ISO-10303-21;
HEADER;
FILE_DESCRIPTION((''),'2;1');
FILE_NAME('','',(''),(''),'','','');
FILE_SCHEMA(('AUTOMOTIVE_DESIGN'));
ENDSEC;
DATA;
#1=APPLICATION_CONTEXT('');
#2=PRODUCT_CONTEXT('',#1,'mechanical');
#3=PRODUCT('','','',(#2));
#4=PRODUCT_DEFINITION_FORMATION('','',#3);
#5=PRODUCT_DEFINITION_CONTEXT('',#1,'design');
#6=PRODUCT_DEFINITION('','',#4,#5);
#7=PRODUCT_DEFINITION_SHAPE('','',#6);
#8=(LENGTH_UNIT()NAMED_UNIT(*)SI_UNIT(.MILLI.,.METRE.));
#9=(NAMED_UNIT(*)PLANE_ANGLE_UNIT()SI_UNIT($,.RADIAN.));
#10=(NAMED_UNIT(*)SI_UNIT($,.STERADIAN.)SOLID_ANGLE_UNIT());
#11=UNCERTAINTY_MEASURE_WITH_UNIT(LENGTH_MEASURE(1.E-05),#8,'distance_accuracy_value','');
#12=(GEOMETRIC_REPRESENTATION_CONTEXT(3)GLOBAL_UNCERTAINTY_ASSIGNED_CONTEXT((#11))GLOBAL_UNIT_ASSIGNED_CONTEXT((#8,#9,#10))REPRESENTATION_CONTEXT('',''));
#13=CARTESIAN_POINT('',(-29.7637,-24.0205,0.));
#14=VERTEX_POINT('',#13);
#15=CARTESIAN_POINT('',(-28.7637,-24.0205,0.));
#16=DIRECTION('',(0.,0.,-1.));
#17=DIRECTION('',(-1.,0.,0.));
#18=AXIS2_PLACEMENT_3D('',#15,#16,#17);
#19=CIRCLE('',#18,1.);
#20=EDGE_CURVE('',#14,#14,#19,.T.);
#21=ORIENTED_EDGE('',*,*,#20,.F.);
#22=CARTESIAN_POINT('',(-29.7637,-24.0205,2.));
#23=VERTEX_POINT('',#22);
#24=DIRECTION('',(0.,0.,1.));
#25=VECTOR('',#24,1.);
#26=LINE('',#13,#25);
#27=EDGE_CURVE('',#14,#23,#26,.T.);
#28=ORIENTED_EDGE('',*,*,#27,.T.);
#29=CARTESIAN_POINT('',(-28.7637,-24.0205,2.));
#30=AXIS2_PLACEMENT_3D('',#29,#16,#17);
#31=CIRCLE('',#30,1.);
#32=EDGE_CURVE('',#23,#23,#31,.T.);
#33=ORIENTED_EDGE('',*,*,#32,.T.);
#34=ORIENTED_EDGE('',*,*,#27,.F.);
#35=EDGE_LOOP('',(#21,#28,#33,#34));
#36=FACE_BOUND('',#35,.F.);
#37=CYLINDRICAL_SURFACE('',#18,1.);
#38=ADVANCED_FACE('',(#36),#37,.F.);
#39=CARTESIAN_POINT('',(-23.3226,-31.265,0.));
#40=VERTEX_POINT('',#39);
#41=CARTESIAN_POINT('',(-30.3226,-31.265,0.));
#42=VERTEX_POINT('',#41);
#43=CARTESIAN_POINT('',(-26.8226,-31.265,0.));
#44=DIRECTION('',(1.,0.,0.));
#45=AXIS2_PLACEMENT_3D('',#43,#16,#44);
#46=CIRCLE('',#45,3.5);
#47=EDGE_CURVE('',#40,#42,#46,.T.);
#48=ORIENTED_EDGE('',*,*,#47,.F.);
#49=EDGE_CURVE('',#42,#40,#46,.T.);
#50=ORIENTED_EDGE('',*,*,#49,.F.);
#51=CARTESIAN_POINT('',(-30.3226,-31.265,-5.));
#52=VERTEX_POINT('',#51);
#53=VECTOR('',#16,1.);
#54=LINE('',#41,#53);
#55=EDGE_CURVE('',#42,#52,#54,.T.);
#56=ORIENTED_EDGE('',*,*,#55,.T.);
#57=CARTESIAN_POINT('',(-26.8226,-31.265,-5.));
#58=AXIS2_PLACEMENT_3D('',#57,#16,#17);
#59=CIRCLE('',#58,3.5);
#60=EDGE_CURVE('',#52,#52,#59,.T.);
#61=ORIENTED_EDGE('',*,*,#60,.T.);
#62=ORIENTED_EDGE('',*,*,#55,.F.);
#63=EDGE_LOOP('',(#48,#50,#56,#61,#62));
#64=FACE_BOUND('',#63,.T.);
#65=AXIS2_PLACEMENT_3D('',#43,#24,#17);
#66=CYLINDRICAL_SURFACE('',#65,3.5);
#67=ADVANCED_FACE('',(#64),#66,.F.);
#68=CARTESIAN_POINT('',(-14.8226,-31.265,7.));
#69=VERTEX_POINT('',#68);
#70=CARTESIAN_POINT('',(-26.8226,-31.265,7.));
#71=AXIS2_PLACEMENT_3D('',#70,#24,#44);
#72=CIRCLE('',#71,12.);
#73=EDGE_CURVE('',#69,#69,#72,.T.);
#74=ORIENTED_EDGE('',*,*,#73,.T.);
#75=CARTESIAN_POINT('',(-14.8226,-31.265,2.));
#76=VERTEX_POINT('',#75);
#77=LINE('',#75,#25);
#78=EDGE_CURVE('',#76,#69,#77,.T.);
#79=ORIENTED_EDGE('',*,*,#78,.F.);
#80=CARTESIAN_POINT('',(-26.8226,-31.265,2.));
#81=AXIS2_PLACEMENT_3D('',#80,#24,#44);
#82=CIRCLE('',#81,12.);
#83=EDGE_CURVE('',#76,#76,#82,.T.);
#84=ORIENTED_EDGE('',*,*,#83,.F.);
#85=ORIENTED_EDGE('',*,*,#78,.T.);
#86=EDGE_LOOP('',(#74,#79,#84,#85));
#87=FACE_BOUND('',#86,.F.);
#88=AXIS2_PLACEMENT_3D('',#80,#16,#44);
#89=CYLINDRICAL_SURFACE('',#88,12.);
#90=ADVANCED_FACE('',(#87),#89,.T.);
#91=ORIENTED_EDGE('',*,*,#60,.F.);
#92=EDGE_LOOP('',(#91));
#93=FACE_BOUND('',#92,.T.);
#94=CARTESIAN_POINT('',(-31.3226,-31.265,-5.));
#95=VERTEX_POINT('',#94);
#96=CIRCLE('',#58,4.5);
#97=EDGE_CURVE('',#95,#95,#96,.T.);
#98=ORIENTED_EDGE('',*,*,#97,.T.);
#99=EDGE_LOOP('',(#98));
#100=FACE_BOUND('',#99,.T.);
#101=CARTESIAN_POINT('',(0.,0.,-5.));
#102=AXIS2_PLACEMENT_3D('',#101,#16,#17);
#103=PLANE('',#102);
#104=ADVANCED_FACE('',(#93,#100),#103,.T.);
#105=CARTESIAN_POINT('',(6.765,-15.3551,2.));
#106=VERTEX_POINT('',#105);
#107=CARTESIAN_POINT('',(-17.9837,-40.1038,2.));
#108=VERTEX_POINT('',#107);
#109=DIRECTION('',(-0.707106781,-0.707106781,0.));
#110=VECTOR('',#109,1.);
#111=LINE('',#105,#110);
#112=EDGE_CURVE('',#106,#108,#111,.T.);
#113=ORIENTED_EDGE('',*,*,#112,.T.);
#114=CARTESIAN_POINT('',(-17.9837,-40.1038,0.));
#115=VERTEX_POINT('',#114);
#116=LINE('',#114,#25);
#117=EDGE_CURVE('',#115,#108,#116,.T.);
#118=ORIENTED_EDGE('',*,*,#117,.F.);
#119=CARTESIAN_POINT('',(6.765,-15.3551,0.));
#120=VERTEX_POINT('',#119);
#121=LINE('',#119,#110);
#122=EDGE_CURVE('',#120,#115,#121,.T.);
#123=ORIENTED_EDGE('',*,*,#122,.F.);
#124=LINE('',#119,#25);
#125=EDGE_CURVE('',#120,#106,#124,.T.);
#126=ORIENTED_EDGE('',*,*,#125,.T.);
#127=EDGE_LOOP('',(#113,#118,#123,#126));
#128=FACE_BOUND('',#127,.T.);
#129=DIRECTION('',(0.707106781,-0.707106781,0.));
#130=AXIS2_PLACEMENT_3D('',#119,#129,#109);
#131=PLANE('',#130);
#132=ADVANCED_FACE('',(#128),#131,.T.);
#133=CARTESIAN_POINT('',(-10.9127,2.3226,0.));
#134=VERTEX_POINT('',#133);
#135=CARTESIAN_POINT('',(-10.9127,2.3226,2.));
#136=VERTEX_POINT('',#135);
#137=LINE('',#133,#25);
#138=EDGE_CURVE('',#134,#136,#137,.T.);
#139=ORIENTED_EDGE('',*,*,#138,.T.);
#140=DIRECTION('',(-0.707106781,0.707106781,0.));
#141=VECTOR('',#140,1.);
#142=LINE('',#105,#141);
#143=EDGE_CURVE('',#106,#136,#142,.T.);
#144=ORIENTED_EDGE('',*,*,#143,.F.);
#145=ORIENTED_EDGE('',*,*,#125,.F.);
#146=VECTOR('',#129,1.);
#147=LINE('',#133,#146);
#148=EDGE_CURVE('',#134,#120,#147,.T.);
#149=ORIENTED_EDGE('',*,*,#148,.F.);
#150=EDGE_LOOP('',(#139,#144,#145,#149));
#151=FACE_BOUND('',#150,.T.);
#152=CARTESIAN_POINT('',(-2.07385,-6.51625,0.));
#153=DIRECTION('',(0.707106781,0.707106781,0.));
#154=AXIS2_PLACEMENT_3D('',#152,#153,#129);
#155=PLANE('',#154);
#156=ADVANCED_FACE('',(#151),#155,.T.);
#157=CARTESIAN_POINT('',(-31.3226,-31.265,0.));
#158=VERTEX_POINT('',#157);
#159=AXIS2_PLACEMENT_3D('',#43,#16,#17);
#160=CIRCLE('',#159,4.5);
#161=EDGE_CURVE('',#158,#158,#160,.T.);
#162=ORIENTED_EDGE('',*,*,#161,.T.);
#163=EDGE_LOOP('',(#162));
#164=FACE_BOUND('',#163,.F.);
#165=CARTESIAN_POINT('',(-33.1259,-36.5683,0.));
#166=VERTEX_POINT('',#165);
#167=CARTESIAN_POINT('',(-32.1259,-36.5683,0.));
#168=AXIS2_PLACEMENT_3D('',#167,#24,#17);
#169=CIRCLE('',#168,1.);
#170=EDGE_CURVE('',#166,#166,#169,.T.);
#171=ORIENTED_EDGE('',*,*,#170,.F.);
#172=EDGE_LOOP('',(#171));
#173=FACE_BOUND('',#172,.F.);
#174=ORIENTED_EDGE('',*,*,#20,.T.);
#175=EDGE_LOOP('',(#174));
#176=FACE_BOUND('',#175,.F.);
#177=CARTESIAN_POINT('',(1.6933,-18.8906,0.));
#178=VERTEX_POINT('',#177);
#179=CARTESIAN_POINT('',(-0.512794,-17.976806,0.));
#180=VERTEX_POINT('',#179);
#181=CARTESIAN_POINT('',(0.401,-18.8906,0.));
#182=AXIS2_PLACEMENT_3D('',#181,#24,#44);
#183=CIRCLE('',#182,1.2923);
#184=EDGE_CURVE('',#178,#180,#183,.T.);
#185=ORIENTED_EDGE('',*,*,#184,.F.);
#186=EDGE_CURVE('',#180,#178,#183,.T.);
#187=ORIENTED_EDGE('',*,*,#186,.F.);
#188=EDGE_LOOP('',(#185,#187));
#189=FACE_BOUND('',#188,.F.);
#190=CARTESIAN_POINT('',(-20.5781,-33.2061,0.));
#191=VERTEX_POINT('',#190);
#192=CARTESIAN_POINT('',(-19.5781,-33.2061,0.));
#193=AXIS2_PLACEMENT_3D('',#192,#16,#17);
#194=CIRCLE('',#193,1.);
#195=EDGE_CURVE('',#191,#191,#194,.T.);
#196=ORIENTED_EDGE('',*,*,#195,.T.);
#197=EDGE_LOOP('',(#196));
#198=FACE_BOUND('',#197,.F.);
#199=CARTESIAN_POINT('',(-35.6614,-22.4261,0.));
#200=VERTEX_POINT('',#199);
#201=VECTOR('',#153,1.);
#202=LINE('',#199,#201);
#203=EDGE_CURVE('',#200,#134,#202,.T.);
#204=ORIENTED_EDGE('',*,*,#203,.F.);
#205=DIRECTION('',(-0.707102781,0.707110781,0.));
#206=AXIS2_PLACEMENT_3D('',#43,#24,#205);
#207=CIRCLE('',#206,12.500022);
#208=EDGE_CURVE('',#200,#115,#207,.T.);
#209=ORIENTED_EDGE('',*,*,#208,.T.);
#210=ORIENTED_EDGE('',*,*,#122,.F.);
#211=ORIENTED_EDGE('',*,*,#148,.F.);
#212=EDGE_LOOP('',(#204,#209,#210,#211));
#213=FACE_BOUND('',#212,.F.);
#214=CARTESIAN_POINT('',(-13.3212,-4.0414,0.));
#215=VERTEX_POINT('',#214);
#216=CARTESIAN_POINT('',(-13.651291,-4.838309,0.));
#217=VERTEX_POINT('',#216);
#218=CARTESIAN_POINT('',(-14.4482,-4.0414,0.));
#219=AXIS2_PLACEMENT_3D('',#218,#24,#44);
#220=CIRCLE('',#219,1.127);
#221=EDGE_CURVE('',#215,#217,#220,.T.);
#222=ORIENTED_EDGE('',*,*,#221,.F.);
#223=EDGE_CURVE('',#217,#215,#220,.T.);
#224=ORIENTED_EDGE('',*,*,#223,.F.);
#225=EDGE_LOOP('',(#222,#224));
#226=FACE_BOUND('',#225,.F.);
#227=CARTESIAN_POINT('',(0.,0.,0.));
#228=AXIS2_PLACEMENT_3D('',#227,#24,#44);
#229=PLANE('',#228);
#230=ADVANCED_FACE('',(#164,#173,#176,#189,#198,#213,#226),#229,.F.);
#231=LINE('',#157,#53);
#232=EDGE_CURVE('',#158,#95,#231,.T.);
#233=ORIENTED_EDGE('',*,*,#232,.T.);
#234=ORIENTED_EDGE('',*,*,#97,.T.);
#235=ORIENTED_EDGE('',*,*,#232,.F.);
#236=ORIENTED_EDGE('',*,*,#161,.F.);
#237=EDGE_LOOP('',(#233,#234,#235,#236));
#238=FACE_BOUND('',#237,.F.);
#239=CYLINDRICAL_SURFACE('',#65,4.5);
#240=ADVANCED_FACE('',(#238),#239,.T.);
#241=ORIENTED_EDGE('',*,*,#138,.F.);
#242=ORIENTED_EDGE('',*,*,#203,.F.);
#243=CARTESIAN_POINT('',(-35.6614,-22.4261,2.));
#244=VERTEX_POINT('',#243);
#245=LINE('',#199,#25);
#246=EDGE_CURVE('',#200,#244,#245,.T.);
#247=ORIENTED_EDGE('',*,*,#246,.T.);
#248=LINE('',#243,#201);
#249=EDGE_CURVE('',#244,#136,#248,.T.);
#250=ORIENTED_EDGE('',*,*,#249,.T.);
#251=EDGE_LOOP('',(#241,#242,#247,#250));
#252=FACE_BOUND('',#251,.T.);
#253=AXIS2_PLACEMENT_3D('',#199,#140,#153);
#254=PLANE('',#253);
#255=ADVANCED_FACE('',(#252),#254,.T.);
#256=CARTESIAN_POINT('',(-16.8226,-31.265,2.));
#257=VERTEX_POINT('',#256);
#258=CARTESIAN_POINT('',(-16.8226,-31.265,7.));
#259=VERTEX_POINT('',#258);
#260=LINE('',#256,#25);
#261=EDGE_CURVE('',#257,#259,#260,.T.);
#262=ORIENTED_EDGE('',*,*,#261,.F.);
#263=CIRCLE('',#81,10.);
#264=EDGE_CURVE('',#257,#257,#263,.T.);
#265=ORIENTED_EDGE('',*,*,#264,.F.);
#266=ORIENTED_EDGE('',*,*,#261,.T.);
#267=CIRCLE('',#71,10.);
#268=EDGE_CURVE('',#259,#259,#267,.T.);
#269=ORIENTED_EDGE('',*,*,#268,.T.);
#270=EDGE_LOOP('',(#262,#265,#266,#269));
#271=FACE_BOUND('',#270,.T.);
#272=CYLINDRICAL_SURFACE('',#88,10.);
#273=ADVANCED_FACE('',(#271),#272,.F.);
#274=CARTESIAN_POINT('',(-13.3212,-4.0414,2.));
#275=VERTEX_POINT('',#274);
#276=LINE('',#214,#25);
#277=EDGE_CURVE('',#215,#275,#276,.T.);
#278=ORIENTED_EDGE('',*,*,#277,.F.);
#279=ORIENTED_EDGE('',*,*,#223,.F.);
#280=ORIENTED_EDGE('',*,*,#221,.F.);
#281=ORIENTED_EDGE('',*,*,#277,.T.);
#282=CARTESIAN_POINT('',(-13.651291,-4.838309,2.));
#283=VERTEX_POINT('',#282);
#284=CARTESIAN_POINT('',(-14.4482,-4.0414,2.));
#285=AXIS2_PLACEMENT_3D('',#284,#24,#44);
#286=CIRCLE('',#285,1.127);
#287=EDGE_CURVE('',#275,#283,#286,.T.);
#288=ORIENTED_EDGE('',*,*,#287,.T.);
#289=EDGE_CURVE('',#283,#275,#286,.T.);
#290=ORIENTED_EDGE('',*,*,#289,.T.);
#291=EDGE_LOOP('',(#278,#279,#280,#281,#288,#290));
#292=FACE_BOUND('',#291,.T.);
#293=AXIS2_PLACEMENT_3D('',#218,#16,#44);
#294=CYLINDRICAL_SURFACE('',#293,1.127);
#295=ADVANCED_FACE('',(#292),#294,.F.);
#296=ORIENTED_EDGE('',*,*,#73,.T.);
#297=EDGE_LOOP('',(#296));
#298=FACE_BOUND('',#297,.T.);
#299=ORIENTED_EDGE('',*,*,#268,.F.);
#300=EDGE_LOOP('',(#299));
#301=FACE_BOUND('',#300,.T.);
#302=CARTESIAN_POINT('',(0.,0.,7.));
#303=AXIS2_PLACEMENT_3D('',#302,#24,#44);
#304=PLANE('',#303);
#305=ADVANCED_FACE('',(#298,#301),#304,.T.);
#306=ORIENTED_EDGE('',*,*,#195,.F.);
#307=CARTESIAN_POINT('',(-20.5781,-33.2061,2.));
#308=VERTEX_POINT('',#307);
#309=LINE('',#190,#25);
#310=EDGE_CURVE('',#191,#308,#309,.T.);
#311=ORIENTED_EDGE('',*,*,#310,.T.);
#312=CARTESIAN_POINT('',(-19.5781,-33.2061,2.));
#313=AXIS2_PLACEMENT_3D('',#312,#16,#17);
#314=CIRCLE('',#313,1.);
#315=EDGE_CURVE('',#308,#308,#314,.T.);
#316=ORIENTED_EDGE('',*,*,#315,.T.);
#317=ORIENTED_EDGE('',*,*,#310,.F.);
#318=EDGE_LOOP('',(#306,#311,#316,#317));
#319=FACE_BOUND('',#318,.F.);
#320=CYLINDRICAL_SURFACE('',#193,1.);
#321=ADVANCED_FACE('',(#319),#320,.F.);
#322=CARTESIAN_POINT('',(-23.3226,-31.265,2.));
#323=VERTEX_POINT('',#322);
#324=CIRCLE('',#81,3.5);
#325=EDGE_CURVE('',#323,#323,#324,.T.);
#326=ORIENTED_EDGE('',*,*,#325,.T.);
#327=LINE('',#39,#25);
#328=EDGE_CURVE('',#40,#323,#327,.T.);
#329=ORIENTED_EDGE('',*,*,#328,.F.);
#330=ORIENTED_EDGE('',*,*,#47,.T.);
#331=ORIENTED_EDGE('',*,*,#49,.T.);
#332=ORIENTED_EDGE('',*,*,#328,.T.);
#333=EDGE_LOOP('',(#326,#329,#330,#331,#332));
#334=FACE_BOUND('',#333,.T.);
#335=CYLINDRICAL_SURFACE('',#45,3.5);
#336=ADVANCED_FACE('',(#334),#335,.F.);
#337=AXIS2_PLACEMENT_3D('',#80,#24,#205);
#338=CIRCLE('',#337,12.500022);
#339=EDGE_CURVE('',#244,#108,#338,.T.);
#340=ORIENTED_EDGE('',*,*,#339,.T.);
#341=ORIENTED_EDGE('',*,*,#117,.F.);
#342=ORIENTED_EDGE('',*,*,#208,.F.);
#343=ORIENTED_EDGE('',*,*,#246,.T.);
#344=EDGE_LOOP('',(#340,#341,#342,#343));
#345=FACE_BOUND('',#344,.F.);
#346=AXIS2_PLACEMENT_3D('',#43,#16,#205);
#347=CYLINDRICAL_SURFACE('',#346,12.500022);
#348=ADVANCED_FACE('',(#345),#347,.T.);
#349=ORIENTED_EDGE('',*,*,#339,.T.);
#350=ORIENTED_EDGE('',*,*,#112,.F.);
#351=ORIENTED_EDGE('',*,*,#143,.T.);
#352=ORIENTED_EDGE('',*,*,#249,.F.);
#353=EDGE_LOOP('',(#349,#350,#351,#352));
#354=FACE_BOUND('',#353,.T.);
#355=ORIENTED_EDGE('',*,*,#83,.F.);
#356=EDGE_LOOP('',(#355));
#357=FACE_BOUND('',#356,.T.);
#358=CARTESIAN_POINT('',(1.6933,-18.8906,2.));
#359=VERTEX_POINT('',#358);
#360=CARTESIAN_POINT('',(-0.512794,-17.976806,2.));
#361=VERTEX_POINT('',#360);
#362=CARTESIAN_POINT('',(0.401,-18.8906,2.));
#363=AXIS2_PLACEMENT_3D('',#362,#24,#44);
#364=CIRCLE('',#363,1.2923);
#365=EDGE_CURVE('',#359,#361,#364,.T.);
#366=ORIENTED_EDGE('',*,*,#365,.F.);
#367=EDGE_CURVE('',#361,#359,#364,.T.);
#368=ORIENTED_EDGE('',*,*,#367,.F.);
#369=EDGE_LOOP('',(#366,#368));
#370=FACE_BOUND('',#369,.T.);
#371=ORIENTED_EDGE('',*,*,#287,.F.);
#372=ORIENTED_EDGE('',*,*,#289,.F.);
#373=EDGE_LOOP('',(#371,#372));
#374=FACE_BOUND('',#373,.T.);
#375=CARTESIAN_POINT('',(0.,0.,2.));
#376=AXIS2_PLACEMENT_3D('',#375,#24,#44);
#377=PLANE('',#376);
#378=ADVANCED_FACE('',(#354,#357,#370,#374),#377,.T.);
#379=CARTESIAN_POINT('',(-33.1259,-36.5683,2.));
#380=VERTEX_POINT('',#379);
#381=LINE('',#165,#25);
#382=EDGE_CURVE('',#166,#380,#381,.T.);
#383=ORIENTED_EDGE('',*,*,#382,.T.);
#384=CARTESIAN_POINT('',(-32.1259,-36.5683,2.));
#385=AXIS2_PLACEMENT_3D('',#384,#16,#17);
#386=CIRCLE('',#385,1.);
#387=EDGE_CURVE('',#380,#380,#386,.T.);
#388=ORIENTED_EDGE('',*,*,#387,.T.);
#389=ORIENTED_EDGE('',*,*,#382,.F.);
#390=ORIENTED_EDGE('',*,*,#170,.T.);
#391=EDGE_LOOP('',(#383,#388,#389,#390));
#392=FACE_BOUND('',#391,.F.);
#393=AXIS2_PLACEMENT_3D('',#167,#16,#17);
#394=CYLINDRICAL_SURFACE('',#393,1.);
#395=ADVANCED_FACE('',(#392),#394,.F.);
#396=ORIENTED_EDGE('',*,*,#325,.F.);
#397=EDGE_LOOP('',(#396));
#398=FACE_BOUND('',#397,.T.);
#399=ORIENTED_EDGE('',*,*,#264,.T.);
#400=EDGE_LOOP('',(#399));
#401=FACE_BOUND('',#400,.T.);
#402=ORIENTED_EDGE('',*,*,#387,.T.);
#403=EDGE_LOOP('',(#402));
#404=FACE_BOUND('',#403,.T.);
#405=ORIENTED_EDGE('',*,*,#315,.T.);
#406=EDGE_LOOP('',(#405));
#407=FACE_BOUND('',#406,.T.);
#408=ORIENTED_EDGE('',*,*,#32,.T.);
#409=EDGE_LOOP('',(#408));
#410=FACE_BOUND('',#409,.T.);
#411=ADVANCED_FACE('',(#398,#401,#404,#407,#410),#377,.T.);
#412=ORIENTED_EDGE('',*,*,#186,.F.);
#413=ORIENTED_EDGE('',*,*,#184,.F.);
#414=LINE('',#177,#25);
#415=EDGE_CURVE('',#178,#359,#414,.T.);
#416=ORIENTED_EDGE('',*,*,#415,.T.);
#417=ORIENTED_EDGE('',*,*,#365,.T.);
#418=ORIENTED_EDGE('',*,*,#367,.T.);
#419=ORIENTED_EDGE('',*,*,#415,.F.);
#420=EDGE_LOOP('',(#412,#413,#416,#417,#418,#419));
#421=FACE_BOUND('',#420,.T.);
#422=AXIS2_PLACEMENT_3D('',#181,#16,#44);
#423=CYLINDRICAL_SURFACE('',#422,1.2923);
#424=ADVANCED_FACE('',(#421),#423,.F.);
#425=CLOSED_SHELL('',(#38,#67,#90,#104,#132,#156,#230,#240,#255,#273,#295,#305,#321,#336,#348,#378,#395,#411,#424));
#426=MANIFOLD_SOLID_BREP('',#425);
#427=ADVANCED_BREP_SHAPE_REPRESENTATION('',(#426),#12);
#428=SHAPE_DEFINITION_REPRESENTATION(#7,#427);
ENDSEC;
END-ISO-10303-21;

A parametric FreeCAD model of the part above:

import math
import FreeCAD as App
import Part
import Sketcher
Q = App.Units.Quantity

doc = App.newDocument("Part")
body = doc.addObject("PartDesign::Body", "Body")

# Sketch on XY plane
sketch1 = doc.addObject("Sketcher::SketchObject", "Sketch")
body.addObject(sketch1)
sketch1.AttachmentSupport = (doc.XY_Plane, [""])
sketch1.MapMode = "FlatFace"
sketch1.addGeometry([
    Part.LineSegment(App.Vector(6.8, -15.4, 0), App.Vector(-10.9, 2.3, 0)),  # 0
    Part.LineSegment(App.Vector(-10.9, 2.3, 0), App.Vector(-35.7, -22.4, 0)),  # 1
    Part.ArcOfCircle(Part.Circle(App.Vector(-26.8, -31.3, 0), App.Vector(0, 0, 1), 12.5), math.radians(135), math.radians(315)),  # 2
    Part.LineSegment(App.Vector(-18, -40.1, 0), App.Vector(6.8, -15.4, 0)),  # 3
    Part.Circle(App.Vector(-26.8, -31.3, 0), App.Vector(0, 0, 1), 3.5),  # 4
    Part.Circle(App.Vector(0.4, -18.9, 0), App.Vector(0, 0, 1), 1.3),  # 5
    Part.Circle(App.Vector(-14.4, -4, 0), App.Vector(0, 0, 1), 1.1),  # 6
], False)
sketch1.addConstraint([
    Sketcher.Constraint("Coincident", 0, 2, 1, 1),
    Sketcher.Constraint("Tangent", 1, 2, 2, 1),
    Sketcher.Constraint("Tangent", 2, 2, 3, 1),
    Sketcher.Constraint("Coincident", 3, 2, 0, 1),
    Sketcher.Constraint("Coincident", 4, 3, 2, 3),
    Sketcher.Constraint("Perpendicular", 0, 1),
    Sketcher.Constraint("Parallel", 1, 3),
    Sketcher.Constraint("Distance", 1, 35.0),
    Sketcher.Constraint("Diameter", 4, 7.0),
    Sketcher.Constraint("Radius", 2, 12.5),
    Sketcher.Constraint("Angle", 0, Q("135 deg")),
    Sketcher.Constraint("Diameter", 6, 2.254),
    Sketcher.Constraint("Diameter", 5, 2.5846),
    Sketcher.Constraint("DistanceY", 2, 3, -1, 1, 31.265),
    Sketcher.Constraint("DistanceX", -1, 1, 5, 3, 0.401),
    Sketcher.Constraint("DistanceX", -1, 1, 3, 2, 6.765),
    Sketcher.Constraint("DistanceY", 6, 3, 0, 2, 6.364),
    Sketcher.Constraint("DistanceY", 5, 3, -1, 1, 18.8906),
    Sketcher.Constraint("DistanceX", 6, 3, -1, 1, 14.4482),
])
pad1 = doc.addObject("PartDesign::Pad", "Pad")
body.addObject(pad1)
pad1.Profile = sketch1
pad1.Length = 2

# Sketch on XY plane
sketch2 = doc.addObject("Sketcher::SketchObject", "Sketch001")
body.addObject(sketch2)
sketch2.AttachmentSupport = (doc.XY_Plane, [""])
sketch2.MapMode = "FlatFace"
sketch2.AttachmentOffset = App.Placement(App.Vector(0, 0, 2), App.Rotation())
sketch2.addGeometry([
    Part.Circle(App.Vector(-27, -31, 0), App.Vector(0, 0, 1), 12),
    Part.Circle(App.Vector(-27, -31, 0), App.Vector(0, 0, 1), 10),
], False)
sketch2.addConstraint([
    Sketcher.Constraint("Coincident", 1, 3, 0, 3),
    Sketcher.Constraint("Diameter", 1, 20.0),
    Sketcher.Constraint("Diameter", 0, 24.0),
    Sketcher.Constraint("DistanceY", 0, 3, -1, 1, 31.265),
    Sketcher.Constraint("DistanceX", 0, 3, -1, 1, 26.8226),
])
pad2 = doc.addObject("PartDesign::Pad", "Pad001")
body.addObject(pad2)
pad2.Profile = sketch2
pad2.Length = 5

# Sketch on XY plane
sketch3 = doc.addObject("Sketcher::SketchObject", "Sketch002")
body.addObject(sketch3)
sketch3.AttachmentSupport = (doc.XY_Plane, [""])
sketch3.MapMode = "FlatFace"
sketch3.addGeometry([
    Part.Circle(App.Vector(-32.1, -36.6, 0), App.Vector(0, 0, 1), 1),
    Part.Circle(App.Vector(-28.8, -24, 0), App.Vector(0, 0, 1), 1),
    Part.Circle(App.Vector(-19.6, -33.2, 0), App.Vector(0, 0, 1), 1),
], False)
sketch3.addConstraint([
    Sketcher.Constraint("Equal", 0, 1),
    Sketcher.Constraint("Equal", 1, 2),
    Sketcher.Constraint("Diameter", 0, 2.0),
    Sketcher.Constraint("DistanceX", 0, 3, -1, 1, 32.126),
    Sketcher.Constraint("DistanceX", 2, 3, -1, 1, 19.578),
    Sketcher.Constraint("DistanceY", 2, 3, -1, 1, 33.206),
    Sketcher.Constraint("DistanceY", 0, 3, -1, 1, 36.5683),
    Sketcher.Constraint("DistanceX", 1, 3, -1, 1, 28.7637),
    Sketcher.Constraint("DistanceY", 1, 3, -1, 1, 24.0205),
])
pocket1 = doc.addObject("PartDesign::Pocket", "Pocket")
body.addObject(pocket1)
pocket1.Profile = sketch3
pocket1.Length = 5
pocket1.Reversed = True

# Sketch on XY plane
sketch4 = doc.addObject("Sketcher::SketchObject", "Sketch003")
body.addObject(sketch4)
sketch4.AttachmentSupport = (doc.XY_Plane, [""])
sketch4.MapMode = "FlatFace"
sketch4.addGeometry([
    Part.Circle(App.Vector(-26.8, -31.3, 0), App.Vector(0, 0, 1), 4.5),
    Part.Circle(App.Vector(-26.8, -31.3, 0), App.Vector(0, 0, 1), 3.5),
], False)
sketch4.addConstraint([
    Sketcher.Constraint("Coincident", 1, 3, 0, 3),
    Sketcher.Constraint("Diameter", 0, 9.0),
    Sketcher.Constraint("Diameter", 1, 7.0),
    Sketcher.Constraint("DistanceY", 0, 3, -1, 1, 31.265),
    Sketcher.Constraint("DistanceX", 0, 3, -1, 1, 26.8226),
])
pad3 = doc.addObject("PartDesign::Pad", "Pad002")
body.addObject(pad3)
pad3.Profile = sketch4
pad3.Length = 5
pad3.Reversed = True

doc.recompute()
